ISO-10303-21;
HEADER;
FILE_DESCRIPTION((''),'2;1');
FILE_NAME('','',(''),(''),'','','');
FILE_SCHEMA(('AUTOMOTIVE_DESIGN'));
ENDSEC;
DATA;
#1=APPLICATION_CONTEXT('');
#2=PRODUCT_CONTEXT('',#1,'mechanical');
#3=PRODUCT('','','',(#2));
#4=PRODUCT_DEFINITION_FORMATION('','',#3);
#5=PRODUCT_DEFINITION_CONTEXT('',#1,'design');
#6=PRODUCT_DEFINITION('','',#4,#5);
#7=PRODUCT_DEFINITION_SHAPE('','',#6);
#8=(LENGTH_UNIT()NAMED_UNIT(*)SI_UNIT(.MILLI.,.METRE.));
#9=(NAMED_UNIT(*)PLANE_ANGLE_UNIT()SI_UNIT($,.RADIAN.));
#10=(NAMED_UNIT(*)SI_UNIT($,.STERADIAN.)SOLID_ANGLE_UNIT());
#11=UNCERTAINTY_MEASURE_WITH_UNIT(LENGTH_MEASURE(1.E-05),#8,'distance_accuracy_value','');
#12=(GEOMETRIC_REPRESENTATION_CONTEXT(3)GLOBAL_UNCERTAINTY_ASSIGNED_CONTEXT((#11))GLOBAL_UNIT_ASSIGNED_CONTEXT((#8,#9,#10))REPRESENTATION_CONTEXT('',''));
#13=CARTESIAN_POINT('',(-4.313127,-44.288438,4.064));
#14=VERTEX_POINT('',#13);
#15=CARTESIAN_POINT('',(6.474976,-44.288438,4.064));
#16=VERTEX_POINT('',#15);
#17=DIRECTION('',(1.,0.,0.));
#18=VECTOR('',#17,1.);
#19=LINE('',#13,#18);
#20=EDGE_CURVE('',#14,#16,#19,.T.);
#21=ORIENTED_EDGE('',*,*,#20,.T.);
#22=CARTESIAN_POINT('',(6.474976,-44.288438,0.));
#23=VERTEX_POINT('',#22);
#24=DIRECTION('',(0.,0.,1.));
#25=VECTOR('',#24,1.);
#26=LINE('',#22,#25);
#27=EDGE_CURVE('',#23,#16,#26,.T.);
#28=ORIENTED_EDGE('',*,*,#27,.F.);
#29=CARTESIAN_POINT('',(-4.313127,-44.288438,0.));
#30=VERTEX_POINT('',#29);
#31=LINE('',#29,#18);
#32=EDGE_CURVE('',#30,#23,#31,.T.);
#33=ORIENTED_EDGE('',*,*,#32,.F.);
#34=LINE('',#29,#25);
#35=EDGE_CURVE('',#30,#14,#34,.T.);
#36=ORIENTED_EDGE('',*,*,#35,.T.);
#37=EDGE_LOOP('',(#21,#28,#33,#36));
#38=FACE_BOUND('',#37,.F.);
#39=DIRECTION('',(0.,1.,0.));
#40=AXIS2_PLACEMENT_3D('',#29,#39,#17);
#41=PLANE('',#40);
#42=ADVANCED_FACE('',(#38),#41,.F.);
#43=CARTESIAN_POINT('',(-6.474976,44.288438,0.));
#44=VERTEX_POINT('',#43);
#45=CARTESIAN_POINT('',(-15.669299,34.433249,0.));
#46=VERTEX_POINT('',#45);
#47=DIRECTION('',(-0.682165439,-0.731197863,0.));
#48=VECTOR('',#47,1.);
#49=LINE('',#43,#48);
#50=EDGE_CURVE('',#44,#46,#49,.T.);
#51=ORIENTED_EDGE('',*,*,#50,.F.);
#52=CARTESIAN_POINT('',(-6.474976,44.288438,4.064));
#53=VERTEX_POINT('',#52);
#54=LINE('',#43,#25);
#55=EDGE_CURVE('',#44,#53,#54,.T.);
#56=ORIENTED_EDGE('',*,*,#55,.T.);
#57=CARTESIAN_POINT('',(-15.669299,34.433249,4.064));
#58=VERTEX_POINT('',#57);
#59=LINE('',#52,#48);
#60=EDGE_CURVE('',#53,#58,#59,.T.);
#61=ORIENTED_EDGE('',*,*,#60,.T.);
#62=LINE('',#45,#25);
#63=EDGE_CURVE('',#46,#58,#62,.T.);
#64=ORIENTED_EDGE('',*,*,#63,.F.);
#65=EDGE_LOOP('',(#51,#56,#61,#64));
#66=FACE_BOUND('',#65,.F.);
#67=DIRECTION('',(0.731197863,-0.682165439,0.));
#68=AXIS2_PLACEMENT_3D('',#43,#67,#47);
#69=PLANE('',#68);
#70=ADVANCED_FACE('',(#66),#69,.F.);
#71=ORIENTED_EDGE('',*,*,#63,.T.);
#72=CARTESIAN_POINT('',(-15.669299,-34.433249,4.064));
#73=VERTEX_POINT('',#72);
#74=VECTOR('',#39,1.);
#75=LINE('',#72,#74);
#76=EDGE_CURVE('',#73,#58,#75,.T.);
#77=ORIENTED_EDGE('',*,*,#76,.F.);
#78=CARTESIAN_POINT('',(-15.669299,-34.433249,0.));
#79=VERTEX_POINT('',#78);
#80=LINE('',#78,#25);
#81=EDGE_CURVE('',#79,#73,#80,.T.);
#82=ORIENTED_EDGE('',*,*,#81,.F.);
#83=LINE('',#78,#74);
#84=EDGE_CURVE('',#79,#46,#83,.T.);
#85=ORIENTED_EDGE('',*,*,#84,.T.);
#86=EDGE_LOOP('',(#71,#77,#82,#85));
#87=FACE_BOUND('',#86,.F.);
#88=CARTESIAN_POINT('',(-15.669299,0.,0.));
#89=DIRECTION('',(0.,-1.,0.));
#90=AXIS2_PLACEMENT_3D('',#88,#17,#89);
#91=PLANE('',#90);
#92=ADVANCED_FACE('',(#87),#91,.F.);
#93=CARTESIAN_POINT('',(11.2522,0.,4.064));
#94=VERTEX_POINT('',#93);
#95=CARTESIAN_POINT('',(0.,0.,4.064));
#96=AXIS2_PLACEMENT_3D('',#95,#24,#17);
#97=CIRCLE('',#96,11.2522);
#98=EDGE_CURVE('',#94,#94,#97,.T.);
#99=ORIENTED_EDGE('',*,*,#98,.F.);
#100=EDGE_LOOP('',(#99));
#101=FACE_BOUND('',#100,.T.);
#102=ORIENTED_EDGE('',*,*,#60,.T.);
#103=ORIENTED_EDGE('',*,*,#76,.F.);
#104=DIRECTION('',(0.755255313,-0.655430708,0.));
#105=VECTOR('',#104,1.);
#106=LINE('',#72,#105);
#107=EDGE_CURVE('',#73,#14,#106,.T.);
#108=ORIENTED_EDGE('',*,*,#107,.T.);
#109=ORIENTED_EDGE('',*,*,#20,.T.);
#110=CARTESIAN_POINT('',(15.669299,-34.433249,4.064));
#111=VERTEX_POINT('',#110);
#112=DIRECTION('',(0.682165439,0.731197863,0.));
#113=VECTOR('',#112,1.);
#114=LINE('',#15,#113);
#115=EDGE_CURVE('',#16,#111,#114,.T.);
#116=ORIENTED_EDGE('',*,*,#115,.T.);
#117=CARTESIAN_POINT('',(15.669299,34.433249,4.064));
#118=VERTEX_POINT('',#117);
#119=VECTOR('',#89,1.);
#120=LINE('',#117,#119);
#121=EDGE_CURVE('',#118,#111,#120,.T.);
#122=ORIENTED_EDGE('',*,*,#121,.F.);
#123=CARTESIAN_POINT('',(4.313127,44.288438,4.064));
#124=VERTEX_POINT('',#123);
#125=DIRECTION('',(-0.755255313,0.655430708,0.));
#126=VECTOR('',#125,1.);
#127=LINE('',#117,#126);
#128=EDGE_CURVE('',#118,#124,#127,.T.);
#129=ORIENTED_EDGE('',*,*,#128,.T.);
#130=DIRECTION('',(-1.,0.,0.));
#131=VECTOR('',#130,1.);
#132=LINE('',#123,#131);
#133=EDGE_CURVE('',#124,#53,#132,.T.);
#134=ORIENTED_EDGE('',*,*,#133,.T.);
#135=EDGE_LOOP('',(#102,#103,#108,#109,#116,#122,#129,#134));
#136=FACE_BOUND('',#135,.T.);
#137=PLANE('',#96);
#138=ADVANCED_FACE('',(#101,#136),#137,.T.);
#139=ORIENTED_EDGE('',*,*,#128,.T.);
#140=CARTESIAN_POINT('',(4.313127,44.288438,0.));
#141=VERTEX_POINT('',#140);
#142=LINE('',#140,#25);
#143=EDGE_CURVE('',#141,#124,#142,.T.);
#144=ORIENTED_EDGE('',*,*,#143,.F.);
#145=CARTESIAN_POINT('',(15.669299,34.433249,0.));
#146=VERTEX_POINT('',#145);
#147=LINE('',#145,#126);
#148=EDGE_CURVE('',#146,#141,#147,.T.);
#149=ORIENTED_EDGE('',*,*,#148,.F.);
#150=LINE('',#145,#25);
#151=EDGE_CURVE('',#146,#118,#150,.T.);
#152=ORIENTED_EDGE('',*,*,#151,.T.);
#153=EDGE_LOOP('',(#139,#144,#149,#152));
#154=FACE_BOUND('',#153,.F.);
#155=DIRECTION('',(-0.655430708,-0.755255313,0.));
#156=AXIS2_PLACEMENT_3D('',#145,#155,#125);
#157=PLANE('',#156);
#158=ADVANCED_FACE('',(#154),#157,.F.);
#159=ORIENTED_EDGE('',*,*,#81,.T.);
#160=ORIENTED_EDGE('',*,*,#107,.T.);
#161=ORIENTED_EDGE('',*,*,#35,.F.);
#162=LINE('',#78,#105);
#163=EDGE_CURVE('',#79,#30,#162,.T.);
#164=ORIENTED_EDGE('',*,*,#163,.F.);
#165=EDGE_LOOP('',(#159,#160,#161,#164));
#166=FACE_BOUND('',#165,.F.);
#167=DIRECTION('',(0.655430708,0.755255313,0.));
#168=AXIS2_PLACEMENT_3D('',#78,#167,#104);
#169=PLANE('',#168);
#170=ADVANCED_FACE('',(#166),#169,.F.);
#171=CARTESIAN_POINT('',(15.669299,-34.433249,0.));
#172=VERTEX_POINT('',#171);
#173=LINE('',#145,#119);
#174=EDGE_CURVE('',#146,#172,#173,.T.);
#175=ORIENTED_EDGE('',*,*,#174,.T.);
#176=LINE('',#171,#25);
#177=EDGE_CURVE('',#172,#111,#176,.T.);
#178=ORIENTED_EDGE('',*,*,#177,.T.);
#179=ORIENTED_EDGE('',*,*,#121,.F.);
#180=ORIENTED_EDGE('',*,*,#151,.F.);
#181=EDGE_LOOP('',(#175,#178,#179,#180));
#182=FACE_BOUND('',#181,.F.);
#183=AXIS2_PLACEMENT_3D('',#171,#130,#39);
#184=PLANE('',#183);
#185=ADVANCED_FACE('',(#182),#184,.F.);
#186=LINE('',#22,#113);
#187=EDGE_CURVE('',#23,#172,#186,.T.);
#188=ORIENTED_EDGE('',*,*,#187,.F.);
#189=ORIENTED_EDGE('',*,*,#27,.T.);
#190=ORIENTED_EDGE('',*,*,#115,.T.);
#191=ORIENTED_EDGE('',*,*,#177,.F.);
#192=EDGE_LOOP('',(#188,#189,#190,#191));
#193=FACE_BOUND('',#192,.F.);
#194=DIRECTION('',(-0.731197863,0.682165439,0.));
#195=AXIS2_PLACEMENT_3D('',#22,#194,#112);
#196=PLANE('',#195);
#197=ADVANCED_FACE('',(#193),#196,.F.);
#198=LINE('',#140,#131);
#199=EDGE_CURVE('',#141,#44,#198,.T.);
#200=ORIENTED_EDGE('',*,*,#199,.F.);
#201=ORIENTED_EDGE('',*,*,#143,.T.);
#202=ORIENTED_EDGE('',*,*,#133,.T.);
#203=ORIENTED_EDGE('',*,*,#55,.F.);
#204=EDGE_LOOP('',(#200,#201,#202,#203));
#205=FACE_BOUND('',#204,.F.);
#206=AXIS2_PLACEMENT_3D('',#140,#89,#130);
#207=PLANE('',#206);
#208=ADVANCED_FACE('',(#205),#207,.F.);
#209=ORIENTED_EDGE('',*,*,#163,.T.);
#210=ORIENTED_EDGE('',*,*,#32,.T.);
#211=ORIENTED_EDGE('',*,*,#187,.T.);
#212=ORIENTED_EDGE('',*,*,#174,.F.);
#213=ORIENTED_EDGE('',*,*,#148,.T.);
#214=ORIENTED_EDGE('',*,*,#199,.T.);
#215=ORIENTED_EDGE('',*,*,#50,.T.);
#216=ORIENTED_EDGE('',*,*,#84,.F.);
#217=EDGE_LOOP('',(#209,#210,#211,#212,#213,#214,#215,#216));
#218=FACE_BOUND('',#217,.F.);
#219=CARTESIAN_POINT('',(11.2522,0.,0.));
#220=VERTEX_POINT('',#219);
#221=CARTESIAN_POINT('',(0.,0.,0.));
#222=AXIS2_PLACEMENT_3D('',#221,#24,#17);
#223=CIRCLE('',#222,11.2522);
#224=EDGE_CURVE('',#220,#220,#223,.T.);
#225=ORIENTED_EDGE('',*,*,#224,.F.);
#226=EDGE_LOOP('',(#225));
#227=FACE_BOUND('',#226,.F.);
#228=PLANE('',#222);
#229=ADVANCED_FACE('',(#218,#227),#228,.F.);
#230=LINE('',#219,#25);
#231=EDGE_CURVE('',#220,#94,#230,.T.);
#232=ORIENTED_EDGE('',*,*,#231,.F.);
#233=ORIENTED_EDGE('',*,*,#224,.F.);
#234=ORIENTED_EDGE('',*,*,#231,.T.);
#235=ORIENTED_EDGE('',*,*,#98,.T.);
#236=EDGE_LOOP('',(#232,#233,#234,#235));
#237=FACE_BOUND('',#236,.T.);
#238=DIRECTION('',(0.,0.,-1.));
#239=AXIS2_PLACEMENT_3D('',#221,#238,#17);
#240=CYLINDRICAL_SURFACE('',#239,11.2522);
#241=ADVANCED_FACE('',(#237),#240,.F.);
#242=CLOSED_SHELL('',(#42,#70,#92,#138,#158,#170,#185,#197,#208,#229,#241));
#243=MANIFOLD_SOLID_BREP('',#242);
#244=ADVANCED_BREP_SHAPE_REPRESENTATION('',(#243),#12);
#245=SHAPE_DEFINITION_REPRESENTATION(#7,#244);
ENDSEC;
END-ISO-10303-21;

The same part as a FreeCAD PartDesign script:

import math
import FreeCAD as App
import Part
import Sketcher
Q = App.Units.Quantity

doc = App.newDocument("Part")
body = doc.addObject("PartDesign::Body", "Body")

# Sketch on XY plane
sketch1 = doc.addObject("Sketcher::SketchObject", "Sketch")
body.addObject(sketch1)
sketch1.AttachmentSupport = (doc.XY_Plane, [""])
sketch1.MapMode = "FlatFace"
sketch1.addGeometry([
    Part.ArcOfCircle(Part.Circle(App.Vector(0, 0, 0), App.Vector(0, 0, 1), 15.669299), math.radians(0), math.radians(180)),  # 0
    Part.LineSegment(App.Vector(-15.669299, 0, 0), App.Vector(-15.669299, -34.433249, 0)),  # 1
    Part.LineSegment(App.Vector(-15.669299, -34.433249, 0), App.Vector(-4.313127, -44.288438, 0)),  # 2
    Part.LineSegment(App.Vector(-4.313127, -44.288438, 0), App.Vector(6.474976, -44.288438, 0)),  # 3
    Part.LineSegment(App.Vector(6.474976, -44.288438, 0), App.Vector(15.669299, -34.433249, 0)),  # 4
    Part.LineSegment(App.Vector(15.669299, -34.433249, 0), App.Vector(15.669299, 0, 0)),  # 5
    Part.Circle(App.Vector(0, 0, 0), App.Vector(0, 0, 1), 11.2522),  # 6
], False)
sketch1.addConstraint([
    Sketcher.Constraint("Tangent", 0, 2, 1, 1),
    Sketcher.Constraint("Coincident", 1, 2, 2, 1),
    Sketcher.Constraint("Coincident", 2, 2, 3, 1),
    Sketcher.Constraint("Coincident", 3, 2, 4, 1),
    Sketcher.Constraint("Coincident", 4, 2, 5, 1),
    Sketcher.Constraint("Tangent", 5, 2, 0, 1),
    Sketcher.Constraint("Vertical", 1),
    Sketcher.Constraint("Horizontal", 3),
    Sketcher.Constraint("Vertical", 5),
    Sketcher.Constraint("Coincident", 0, 3, -1, 1),
    Sketcher.Constraint("Coincident", 6, 3, -1, 1),
    Sketcher.Constraint("Horizontal", 1, 2, 4, 2),
    Sketcher.Constraint("Diameter", 6, Q("0.886 in")),
    Sketcher.Constraint("Radius", 0, Q("15.669299 mm")),
    Sketcher.Constraint("DistanceY", 1, 2, 1, 1, Q("34.433249 mm")),
    Sketcher.Constraint("DistanceX", 3, 1, 3, 2, Q("10.788103 mm")),
    Sketcher.Constraint("DistanceY", 2, 2, 1, 2, Q("9.855189 mm")),
    Sketcher.Constraint("Distance", 2, Q("15.036203 mm")),
])
pad1 = doc.addObject("PartDesign::Pad", "Pad")
body.addObject(pad1)
pad1.Profile = sketch1
pad1.Length = Q("0.16 in")
body2 = doc.addObject("PartDesign::Body", "Body001")
doc.recompute()

body2.BaseFeature = body
doc.recompute()

body.Placement = App.Placement(App.Vector(0, 0, 0), App.Rotation(App.Vector(0, 0, 1), 180))
boolean = doc.addObject("PartDesign::Boolean", "Boolean")
body2.addObject(boolean)
boolean.Type = "Fuse"
boolean.addObjects([body])

doc.recompute()
